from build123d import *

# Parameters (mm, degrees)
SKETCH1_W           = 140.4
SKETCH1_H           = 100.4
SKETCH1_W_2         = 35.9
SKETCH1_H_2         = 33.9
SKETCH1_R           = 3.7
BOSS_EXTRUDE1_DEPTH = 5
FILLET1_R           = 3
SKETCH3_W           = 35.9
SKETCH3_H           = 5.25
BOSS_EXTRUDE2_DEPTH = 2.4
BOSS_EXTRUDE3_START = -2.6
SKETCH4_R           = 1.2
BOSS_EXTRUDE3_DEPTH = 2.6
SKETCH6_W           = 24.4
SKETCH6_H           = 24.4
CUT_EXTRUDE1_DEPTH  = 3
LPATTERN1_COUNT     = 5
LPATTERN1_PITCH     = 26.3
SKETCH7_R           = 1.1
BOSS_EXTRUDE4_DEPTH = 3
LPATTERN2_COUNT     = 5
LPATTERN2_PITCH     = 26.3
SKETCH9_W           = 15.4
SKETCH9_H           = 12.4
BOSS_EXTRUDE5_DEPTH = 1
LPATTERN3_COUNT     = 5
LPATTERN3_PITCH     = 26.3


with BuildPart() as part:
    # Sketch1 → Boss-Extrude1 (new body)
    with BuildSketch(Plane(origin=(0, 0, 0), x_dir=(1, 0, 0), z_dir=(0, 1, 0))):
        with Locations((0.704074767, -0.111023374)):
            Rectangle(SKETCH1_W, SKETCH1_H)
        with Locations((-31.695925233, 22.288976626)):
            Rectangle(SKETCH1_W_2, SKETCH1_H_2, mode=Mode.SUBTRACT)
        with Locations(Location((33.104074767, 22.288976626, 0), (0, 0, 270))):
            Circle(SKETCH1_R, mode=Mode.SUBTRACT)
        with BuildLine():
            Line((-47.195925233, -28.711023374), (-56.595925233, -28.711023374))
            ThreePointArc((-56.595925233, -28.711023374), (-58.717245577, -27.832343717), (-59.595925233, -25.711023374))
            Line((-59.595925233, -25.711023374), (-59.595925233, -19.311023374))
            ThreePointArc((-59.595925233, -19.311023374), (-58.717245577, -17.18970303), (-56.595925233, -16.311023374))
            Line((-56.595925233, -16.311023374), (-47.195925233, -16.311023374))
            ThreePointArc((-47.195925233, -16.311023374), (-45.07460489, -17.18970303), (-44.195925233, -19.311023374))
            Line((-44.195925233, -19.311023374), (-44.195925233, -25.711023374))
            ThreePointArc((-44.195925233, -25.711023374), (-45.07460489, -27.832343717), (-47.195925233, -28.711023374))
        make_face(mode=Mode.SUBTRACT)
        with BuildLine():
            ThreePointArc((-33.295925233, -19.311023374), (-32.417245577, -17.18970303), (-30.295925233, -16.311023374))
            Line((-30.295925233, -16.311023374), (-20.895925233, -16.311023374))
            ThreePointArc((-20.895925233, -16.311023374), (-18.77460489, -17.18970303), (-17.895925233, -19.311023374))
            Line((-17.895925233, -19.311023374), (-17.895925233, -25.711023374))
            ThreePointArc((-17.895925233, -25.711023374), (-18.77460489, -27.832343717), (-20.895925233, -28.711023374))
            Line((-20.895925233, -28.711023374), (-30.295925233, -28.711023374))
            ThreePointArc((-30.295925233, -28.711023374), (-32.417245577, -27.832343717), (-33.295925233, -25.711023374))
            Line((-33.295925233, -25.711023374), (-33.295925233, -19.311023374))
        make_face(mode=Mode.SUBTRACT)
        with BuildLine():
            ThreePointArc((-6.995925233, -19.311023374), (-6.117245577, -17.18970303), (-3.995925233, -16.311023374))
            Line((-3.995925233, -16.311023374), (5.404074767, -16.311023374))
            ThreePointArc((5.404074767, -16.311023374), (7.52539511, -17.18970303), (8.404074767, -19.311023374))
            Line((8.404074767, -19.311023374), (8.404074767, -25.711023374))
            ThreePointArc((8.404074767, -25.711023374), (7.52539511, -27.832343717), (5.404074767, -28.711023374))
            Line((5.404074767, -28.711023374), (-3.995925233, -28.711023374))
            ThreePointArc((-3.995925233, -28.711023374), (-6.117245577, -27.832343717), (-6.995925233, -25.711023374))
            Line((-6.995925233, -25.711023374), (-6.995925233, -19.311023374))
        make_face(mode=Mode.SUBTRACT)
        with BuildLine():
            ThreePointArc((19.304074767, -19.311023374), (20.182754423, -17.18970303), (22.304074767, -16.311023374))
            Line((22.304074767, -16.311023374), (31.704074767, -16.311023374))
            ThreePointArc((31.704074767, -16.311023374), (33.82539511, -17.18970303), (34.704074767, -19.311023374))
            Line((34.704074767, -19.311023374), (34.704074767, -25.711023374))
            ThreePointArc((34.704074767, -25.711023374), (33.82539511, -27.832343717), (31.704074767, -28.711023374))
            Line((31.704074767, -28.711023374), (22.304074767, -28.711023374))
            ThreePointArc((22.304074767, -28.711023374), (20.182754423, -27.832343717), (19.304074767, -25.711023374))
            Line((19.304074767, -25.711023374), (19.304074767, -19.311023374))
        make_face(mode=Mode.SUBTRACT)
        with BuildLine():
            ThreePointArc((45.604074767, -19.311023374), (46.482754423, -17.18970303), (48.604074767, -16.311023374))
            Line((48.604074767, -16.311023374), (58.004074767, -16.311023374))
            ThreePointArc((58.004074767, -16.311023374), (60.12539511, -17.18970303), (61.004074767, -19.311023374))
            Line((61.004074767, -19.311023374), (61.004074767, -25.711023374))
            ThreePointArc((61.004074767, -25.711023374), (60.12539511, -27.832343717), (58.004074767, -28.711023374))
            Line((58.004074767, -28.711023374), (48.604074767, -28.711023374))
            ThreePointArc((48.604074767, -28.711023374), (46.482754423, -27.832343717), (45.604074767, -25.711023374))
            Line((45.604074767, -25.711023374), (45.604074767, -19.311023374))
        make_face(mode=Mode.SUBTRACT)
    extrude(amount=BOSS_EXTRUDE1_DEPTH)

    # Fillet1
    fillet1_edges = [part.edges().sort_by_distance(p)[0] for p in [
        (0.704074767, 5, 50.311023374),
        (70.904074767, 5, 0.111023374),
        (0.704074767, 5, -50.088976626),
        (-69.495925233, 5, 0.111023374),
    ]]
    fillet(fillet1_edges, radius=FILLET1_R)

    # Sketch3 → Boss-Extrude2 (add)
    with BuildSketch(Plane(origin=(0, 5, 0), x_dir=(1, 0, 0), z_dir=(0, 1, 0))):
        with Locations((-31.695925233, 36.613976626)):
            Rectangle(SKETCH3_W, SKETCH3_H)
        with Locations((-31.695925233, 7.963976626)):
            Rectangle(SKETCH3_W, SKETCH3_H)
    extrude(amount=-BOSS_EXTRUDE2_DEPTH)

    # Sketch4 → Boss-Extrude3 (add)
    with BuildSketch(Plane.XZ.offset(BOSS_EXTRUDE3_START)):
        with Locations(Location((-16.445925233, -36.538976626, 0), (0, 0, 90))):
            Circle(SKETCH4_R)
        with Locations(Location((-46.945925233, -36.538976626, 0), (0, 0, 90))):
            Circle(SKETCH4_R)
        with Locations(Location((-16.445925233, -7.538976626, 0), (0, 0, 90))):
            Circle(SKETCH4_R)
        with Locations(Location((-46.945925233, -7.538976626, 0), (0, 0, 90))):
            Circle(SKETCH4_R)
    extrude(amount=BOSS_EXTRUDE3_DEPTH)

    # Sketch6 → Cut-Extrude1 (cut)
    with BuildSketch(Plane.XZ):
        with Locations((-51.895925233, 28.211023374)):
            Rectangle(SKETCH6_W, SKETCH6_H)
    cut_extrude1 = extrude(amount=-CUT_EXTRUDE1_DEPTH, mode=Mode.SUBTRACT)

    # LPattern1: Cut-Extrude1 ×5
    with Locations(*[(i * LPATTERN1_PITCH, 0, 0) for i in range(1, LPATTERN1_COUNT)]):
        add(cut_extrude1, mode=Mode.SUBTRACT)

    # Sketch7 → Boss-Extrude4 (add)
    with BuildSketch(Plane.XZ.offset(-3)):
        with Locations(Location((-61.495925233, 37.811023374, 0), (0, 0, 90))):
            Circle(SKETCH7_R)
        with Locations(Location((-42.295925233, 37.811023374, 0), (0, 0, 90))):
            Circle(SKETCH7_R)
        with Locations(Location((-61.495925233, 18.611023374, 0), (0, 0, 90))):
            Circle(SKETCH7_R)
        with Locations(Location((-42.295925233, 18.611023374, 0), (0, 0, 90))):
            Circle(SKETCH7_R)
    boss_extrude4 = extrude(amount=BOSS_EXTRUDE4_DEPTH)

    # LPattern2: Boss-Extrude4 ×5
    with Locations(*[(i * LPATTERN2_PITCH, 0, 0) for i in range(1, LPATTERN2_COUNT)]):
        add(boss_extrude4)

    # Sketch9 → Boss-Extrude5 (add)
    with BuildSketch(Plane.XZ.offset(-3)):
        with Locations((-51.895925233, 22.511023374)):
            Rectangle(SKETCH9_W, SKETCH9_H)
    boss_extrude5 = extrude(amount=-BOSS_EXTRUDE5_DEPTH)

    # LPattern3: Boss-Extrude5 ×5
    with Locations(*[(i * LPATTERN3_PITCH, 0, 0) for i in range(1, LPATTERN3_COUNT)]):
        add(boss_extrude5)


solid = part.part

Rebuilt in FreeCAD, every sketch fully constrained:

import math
import FreeCAD as App
import Part
import Sketcher


def edges_at(feature, points):
    """Names of the edges that pass closest to the given points."""
    edges = feature.Shape.Edges
    near = lambda p: min(range(len(edges)), key=lambda i: edges[i].distToShape(Part.Vertex(*p))[0])
    return sorted({f"Edge{near(p) + 1}" for p in points})

doc = App.newDocument("Part")
body = doc.addObject("PartDesign::Body", "Body")

# Sketch on XZ plane
sketch1 = body.newObject("Sketcher::SketchObject", "Sketch")
sketch1.AttachmentSupport = (doc.getObject("XZ_Plane"), [""])
sketch1.MapMode = "FlatFace"
sketch1.addGeometry(Part.LineSegment(App.Vector(-69.5, -50.1, 0), App.Vector(-69.5, 50.3, 0)), False)
sketch1.addGeometry(Part.LineSegment(App.Vector(-69.5, 50.3, 0), App.Vector(70.9, 50.3, 0)), False)
sketch1.addGeometry(Part.LineSegment(App.Vector(70.9, 50.3, 0), App.Vector(70.9, -50.1, 0)), False)
sketch1.addGeometry(Part.LineSegment(App.Vector(70.9, -50.1, 0), App.Vector(-69.5, -50.1, 0)), False)
sketch1.addGeometry(Part.ArcOfCircle(Part.Circle(App.Vector(-47.2, 25.7, 0), App.Vector(0, 0, 1), 3), math.radians(0), math.radians(90)), False)
sketch1.addGeometry(Part.LineSegment(App.Vector(-47.2, 28.7, 0), App.Vector(-56.6, 28.7, 0)), False)
sketch1.addGeometry(Part.ArcOfCircle(Part.Circle(App.Vector(-56.6, 25.7, 0), App.Vector(0, 0, 1), 3), math.radians(90), math.radians(180)), False)
sketch1.addGeometry(Part.LineSegment(App.Vector(-59.6, 25.7, 0), App.Vector(-59.6, 19.3, 0)), False)
sketch1.addGeometry(Part.ArcOfCircle(Part.Circle(App.Vector(-56.6, 19.3, 0), App.Vector(0, 0, 1), 3), math.radians(180), math.radians(270)), False)
sketch1.addGeometry(Part.LineSegment(App.Vector(-56.6, 16.3, 0), App.Vector(-47.2, 16.3, 0)), False)
sketch1.addGeometry(Part.ArcOfCircle(Part.Circle(App.Vector(-47.2, 19.3, 0), App.Vector(0, 0, 1), 3), math.radians(-90), math.radians(0)), False)
sketch1.addGeometry(Part.LineSegment(App.Vector(-44.2, 19.3, 0), App.Vector(-44.2, 25.7, 0)), False)
sketch1.addGeometry(Part.LineSegment(App.Vector(-33.3, 25.7, 0), App.Vector(-33.3, 19.3, 0)), False)
sketch1.addGeometry(Part.ArcOfCircle(Part.Circle(App.Vector(-30.3, 19.3, 0), App.Vector(0, 0, 1), 3), math.radians(180), math.radians(270)), False)
sketch1.addGeometry(Part.LineSegment(App.Vector(-30.3, 16.3, 0), App.Vector(-20.9, 16.3, 0)), False)
sketch1.addGeometry(Part.ArcOfCircle(Part.Circle(App.Vector(-20.9, 19.3, 0), App.Vector(0, 0, 1), 3), math.radians(-90), math.radians(0)), False)
sketch1.addGeometry(Part.LineSegment(App.Vector(-17.9, 19.3, 0), App.Vector(-17.9, 25.7, 0)), False)
sketch1.addGeometry(Part.ArcOfCircle(Part.Circle(App.Vector(-20.9, 25.7, 0), App.Vector(0, 0, 1), 3), math.radians(0), math.radians(90)), False)
sketch1.addGeometry(Part.LineSegment(App.Vector(-20.9, 28.7, 0), App.Vector(-30.3, 28.7, 0)), False)
sketch1.addGeometry(Part.ArcOfCircle(Part.Circle(App.Vector(-30.3, 25.7, 0), App.Vector(0, 0, 1), 3), math.radians(90), math.radians(180)), False)
sketch1.addGeometry(Part.LineSegment(App.Vector(-7, 25.7, 0), App.Vector(-7, 19.3, 0)), False)
sketch1.addGeometry(Part.ArcOfCircle(Part.Circle(App.Vector(-4, 19.3, 0), App.Vector(0, 0, 1), 3), math.radians(180), math.radians(270)), False)
sketch1.addGeometry(Part.LineSegment(App.Vector(-4, 16.3, 0), App.Vector(5.4, 16.3, 0)), False)
sketch1.addGeometry(Part.ArcOfCircle(Part.Circle(App.Vector(5.4, 19.3, 0), App.Vector(0, 0, 1), 3), math.radians(-90), math.radians(0)), False)
sketch1.addGeometry(Part.LineSegment(App.Vector(8.4, 19.3, 0), App.Vector(8.4, 25.7, 0)), False)
sketch1.addGeometry(Part.ArcOfCircle(Part.Circle(App.Vector(5.4, 25.7, 0), App.Vector(0, 0, 1), 3), math.radians(0), math.radians(90)), False)
sketch1.addGeometry(Part.LineSegment(App.Vector(5.4, 28.7, 0), App.Vector(-4, 28.7, 0)), False)
sketch1.addGeometry(Part.ArcOfCircle(Part.Circle(App.Vector(-4, 25.7, 0), App.Vector(0, 0, 1), 3), math.radians(90), math.radians(180)), False)
sketch1.addGeometry(Part.LineSegment(App.Vector(19.3, 25.7, 0), App.Vector(19.3, 19.3, 0)), False)
sketch1.addGeometry(Part.ArcOfCircle(Part.Circle(App.Vector(22.3, 19.3, 0), App.Vector(0, 0, 1), 3), math.radians(180), math.radians(270)), False)
sketch1.addGeometry(Part.LineSegment(App.Vector(22.3, 16.3, 0), App.Vector(31.7, 16.3, 0)), False)
sketch1.addGeometry(Part.ArcOfCircle(Part.Circle(App.Vector(31.7, 19.3, 0), App.Vector(0, 0, 1), 3), math.radians(-90), math.radians(0)), False)
sketch1.addGeometry(Part.LineSegment(App.Vector(34.7, 19.3, 0), App.Vector(34.7, 25.7, 0)), False)
sketch1.addGeometry(Part.ArcOfCircle(Part.Circle(App.Vector(31.7, 25.7, 0), App.Vector(0, 0, 1), 3), math.radians(0), math.radians(90)), False)
sketch1.addGeometry(Part.LineSegment(App.Vector(31.7, 28.7, 0), App.Vector(22.3, 28.7, 0)), False)
sketch1.addGeometry(Part.ArcOfCircle(Part.Circle(App.Vector(22.3, 25.7, 0), App.Vector(0, 0, 1), 3), math.radians(90), math.radians(180)), False)
sketch1.addGeometry(Part.LineSegment(App.Vector(45.6, 25.7, 0), App.Vector(45.6, 19.3, 0)), False)
sketch1.addGeometry(Part.ArcOfCircle(Part.Circle(App.Vector(48.6, 19.3, 0), App.Vector(0, 0, 1), 3), math.radians(180), math.radians(270)), False)
sketch1.addGeometry(Part.LineSegment(App.Vector(48.6, 16.3, 0), App.Vector(58, 16.3, 0)), False)
sketch1.addGeometry(Part.ArcOfCircle(Part.Circle(App.Vector(58, 19.3, 0), App.Vector(0, 0, 1), 3), math.radians(-90), math.radians(0)), False)
sketch1.addGeometry(Part.LineSegment(App.Vector(61, 19.3, 0), App.Vector(61, 25.7, 0)), False)
sketch1.addGeometry(Part.ArcOfCircle(Part.Circle(App.Vector(58, 25.7, 0), App.Vector(0, 0, 1), 3), math.radians(0), math.radians(90)), False)
sketch1.addGeometry(Part.LineSegment(App.Vector(58, 28.7, 0), App.Vector(48.6, 28.7, 0)), False)
sketch1.addGeometry(Part.ArcOfCircle(Part.Circle(App.Vector(48.6, 25.7, 0), App.Vector(0, 0, 1), 3), math.radians(90), math.radians(180)), False)
sketch1.addGeometry(Part.LineSegment(App.Vector(-13.7, -5.3, 0), App.Vector(-49.6, -5.3, 0)), False)
sketch1.addGeometry(Part.LineSegment(App.Vector(-49.6, -5.3, 0), App.Vector(-49.6, -39.2, 0)), False)
sketch1.addGeometry(Part.LineSegment(App.Vector(-49.6, -39.2, 0), App.Vector(-13.7, -39.2, 0)), False)
sketch1.addGeometry(Part.LineSegment(App.Vector(-13.7, -39.2, 0), App.Vector(-13.7, -5.3, 0)), False)
sketch1.addGeometry(Part.Circle(App.Vector(33.1, -22.3, 0), App.Vector(0, 0, 1), 3.7), False)
sketch1.addConstraint(Sketcher.Constraint("Coincident", 0, 2, 1, 1))
sketch1.addConstraint(Sketcher.Constraint("Coincident", 1, 2, 2, 1))
sketch1.addConstraint(Sketcher.Constraint("Coincident", 2, 2, 3, 1))
sketch1.addConstraint(Sketcher.Constraint("Coincident", 3, 2, 0, 1))
sketch1.addConstraint(Sketcher.Constraint("Tangent", 4, 2, 5, 1))
sketch1.addConstraint(Sketcher.Constraint("Tangent", 5, 2, 6, 1))
sketch1.addConstraint(Sketcher.Constraint("Tangent", 6, 2, 7, 1))
sketch1.addConstraint(Sketcher.Constraint("Tangent", 7, 2, 8, 1))
sketch1.addConstraint(Sketcher.Constraint("Tangent", 8, 2, 9, 1))
sketch1.addConstraint(Sketcher.Constraint("Tangent", 9, 2, 10, 1))
sketch1.addConstraint(Sketcher.Constraint("Tangent", 10, 2, 11, 1))
sketch1.addConstraint(Sketcher.Constraint("Tangent", 11, 2, 4, 1))
sketch1.addConstraint(Sketcher.Constraint("Tangent", 12, 2, 13, 1))
sketch1.addConstraint(Sketcher.Constraint("Tangent", 13, 2, 14, 1))
sketch1.addConstraint(Sketcher.Constraint("Tangent", 14, 2, 15, 1))
sketch1.addConstraint(Sketcher.Constraint("Tangent", 15, 2, 16, 1))
sketch1.addConstraint(Sketcher.Constraint("Tangent", 16, 2, 17, 1))
sketch1.addConstraint(Sketcher.Constraint("Tangent", 17, 2, 18, 1))
sketch1.addConstraint(Sketcher.Constraint("Tangent", 18, 2, 19, 1))
sketch1.addConstraint(Sketcher.Constraint("Tangent", 19, 2, 12, 1))
sketch1.addConstraint(Sketcher.Constraint("Tangent", 20, 2, 21, 1))
sketch1.addConstraint(Sketcher.Constraint("Tangent", 21, 2, 22, 1))
sketch1.addConstraint(Sketcher.Constraint("Tangent", 22, 2, 23, 1))
sketch1.addConstraint(Sketcher.Constraint("Tangent", 23, 2, 24, 1))
sketch1.addConstraint(Sketcher.Constraint("Tangent", 24, 2, 25, 1))
sketch1.addConstraint(Sketcher.Constraint("Tangent", 25, 2, 26, 1))
sketch1.addConstraint(Sketcher.Constraint("Tangent", 26, 2, 27, 1))
sketch1.addConstraint(Sketcher.Constraint("Tangent", 27, 2, 20, 1))
sketch1.addConstraint(Sketcher.Constraint("Tangent", 28, 2, 29, 1))
sketch1.addConstraint(Sketcher.Constraint("Tangent", 29, 2, 30, 1))
sketch1.addConstraint(Sketcher.Constraint("Tangent", 30, 2, 31, 1))
sketch1.addConstraint(Sketcher.Constraint("Tangent", 31, 2, 32, 1))
sketch1.addConstraint(Sketcher.Constraint("Tangent", 32, 2, 33, 1))
sketch1.addConstraint(Sketcher.Constraint("Tangent", 33, 2, 34, 1))
sketch1.addConstraint(Sketcher.Constraint("Tangent", 34, 2, 35, 1))
sketch1.addConstraint(Sketcher.Constraint("Tangent", 35, 2, 28, 1))
sketch1.addConstraint(Sketcher.Constraint("Tangent", 36, 2, 37, 1))
sketch1.addConstraint(Sketcher.Constraint("Tangent", 37, 2, 38, 1))
sketch1.addConstraint(Sketcher.Constraint("Tangent", 38, 2, 39, 1))
sketch1.addConstraint(Sketcher.Constraint("Tangent", 39, 2, 40, 1))
sketch1.addConstraint(Sketcher.Constraint("Tangent", 40, 2, 41, 1))
sketch1.addConstraint(Sketcher.Constraint("Tangent", 41, 2, 42, 1))
sketch1.addConstraint(Sketcher.Constraint("Tangent", 42, 2, 43, 1))
sketch1.addConstraint(Sketcher.Constraint("Tangent", 43, 2, 36, 1))
sketch1.addConstraint(Sketcher.Constraint("Coincident", 44, 2, 45, 1))
sketch1.addConstraint(Sketcher.Constraint("Coincident", 45, 2, 46, 1))
sketch1.addConstraint(Sketcher.Constraint("Coincident", 46, 2, 47, 1))
sketch1.addConstraint(Sketcher.Constraint("Coincident", 47, 2, 44, 1))
sketch1.addConstraint(Sketcher.Constraint("Vertical", 0))
sketch1.addConstraint(Sketcher.Constraint("Horizontal", 1))
sketch1.addConstraint(Sketcher.Constraint("Vertical", 2))
sketch1.addConstraint(Sketcher.Constraint("Horizontal", 3))
sketch1.addConstraint(Sketcher.Constraint("Horizontal", 5))
sketch1.addConstraint(Sketcher.Constraint("Vertical", 7))
sketch1.addConstraint(Sketcher.Constraint("Horizontal", 9))
sketch1.addConstraint(Sketcher.Constraint("Vertical", 11))
sketch1.addConstraint(Sketcher.Constraint("Vertical", 12))
sketch1.addConstraint(Sketcher.Constraint("Horizontal", 14))
sketch1.addConstraint(Sketcher.Constraint("Vertical", 16))
sketch1.addConstraint(Sketcher.Constraint("Horizontal", 18))
sketch1.addConstraint(Sketcher.Constraint("Vertical", 20))
sketch1.addConstraint(Sketcher.Constraint("Horizontal", 22))
sketch1.addConstraint(Sketcher.Constraint("Vertical", 24))
sketch1.addConstraint(Sketcher.Constraint("Horizontal", 26))
sketch1.addConstraint(Sketcher.Constraint("Vertical", 28))
sketch1.addConstraint(Sketcher.Constraint("Horizontal", 30))
sketch1.addConstraint(Sketcher.Constraint("Vertical", 32))
sketch1.addConstraint(Sketcher.Constraint("Horizontal", 34))
sketch1.addConstraint(Sketcher.Constraint("Vertical", 36))
sketch1.addConstraint(Sketcher.Constraint("Horizontal", 38))
sketch1.addConstraint(Sketcher.Constraint("Vertical", 40))
sketch1.addConstraint(Sketcher.Constraint("Horizontal", 42))
sketch1.addConstraint(Sketcher.Constraint("Horizontal", 44))
sketch1.addConstraint(Sketcher.Constraint("Vertical", 45))
sketch1.addConstraint(Sketcher.Constraint("Horizontal", 46))
sketch1.addConstraint(Sketcher.Constraint("Vertical", 47))
sketch1.addConstraint(Sketcher.Constraint("Equal", 4, 6))
sketch1.addConstraint(Sketcher.Constraint("Equal", 6, 8))
sketch1.addConstraint(Sketcher.Constraint("Equal", 8, 10))
sketch1.addConstraint(Sketcher.Constraint("Equal", 10, 13))
sketch1.addConstraint(Sketcher.Constraint("Equal", 13, 15))
sketch1.addConstraint(Sketcher.Constraint("Equal", 15, 17))
sketch1.addConstraint(Sketcher.Constraint("Equal", 17, 19))
sketch1.addConstraint(Sketcher.Constraint("Equal", 19, 21))
sketch1.addConstraint(Sketcher.Constraint("Equal", 21, 23))
sketch1.addConstraint(Sketcher.Constraint("Equal", 23, 25))
sketch1.addConstraint(Sketcher.Constraint("Equal", 25, 27))
sketch1.addConstraint(Sketcher.Constraint("Equal", 27, 29))
sketch1.addConstraint(Sketcher.Constraint("Equal", 29, 31))
sketch1.addConstraint(Sketcher.Constraint("Equal", 31, 33))
sketch1.addConstraint(Sketcher.Constraint("Equal", 33, 35))
sketch1.addConstraint(Sketcher.Constraint("Equal", 35, 37))
sketch1.addConstraint(Sketcher.Constraint("Equal", 37, 39))
sketch1.addConstraint(Sketcher.Constraint("Equal", 39, 41))
sketch1.addConstraint(Sketcher.Constraint("Equal", 41, 43))
sketch1.addConstraint(Sketcher.Constraint("Horizontal", 10, 3, 13, 3))
sketch1.addConstraint(Sketcher.Constraint("Horizontal", 6, 3, 17, 3))
sketch1.addConstraint(Sketcher.Constraint("Horizontal", 15, 3, 21, 3))
sketch1.addConstraint(Sketcher.Constraint("Horizontal", 19, 3, 25, 3))
sketch1.addConstraint(Sketcher.Constraint("Horizontal", 23, 3, 29, 3))
sketch1.addConstraint(Sketcher.Constraint("Horizontal", 27, 3, 33, 3))
sketch1.addConstraint(Sketcher.Constraint("Horizontal", 31, 3, 37, 3))
sketch1.addConstraint(Sketcher.Constraint("Horizontal", 35, 3, 41, 3))
sketch1.addConstraint(Sketcher.Constraint("Equal", 9, 14))
sketch1.addConstraint(Sketcher.Constraint("Equal", 18, 22))
sketch1.addConstraint(Sketcher.Constraint("Equal", 26, 30))
sketch1.addConstraint(Sketcher.Constraint("Equal", 34, 38))
sketch1.addConstraint(Sketcher.Constraint("Radius", 4, 3.0))
sketch1.addConstraint(Sketcher.Constraint("Diameter", 48, 7.4))
sketch1.addConstraint(Sketcher.Constraint("DistanceX", 1, 1, 1, 2, 140.4))
sketch1.addConstraint(Sketcher.Constraint("DistanceX", 5, 2, 5, 1, 9.4))
sketch1.addConstraint(Sketcher.Constraint("DistanceX", 44, 2, 44, 1, 35.9))
sketch1.addConstraint(Sketcher.Constraint("DistanceY", 0, 1, 0, 2, 100.4))
sketch1.addConstraint(Sketcher.Constraint("DistanceY", 7, 2, 7, 1, 6.4))
sketch1.addConstraint(Sketcher.Constraint("DistanceY", 45, 2, 45, 1, 33.9))
sketch1.addConstraint(Sketcher.Constraint("DistanceX", 4, 3, -1, 1, 47.195925))
sketch1.addConstraint(Sketcher.Constraint("DistanceY", -1, 1, 4, 3, 25.711023))
sketch1.addConstraint(Sketcher.Constraint("DistanceX", 13, 3, -1, 1, 30.295925))
sketch1.addConstraint(Sketcher.Constraint("DistanceX", 21, 3, -1, 1, 3.995925))
sketch1.addConstraint(Sketcher.Constraint("DistanceX", -1, 1, 29, 3, 22.304075))
sketch1.addConstraint(Sketcher.Constraint("DistanceX", -1, 1, 37, 3, 48.604075))
sketch1.addConstraint(Sketcher.Constraint("DistanceX", -1, 1, 48, 3, 33.104075))
sketch1.addConstraint(Sketcher.Constraint("DistanceY", 48, 3, -1, 1, 22.288977))
sketch1.addConstraint(Sketcher.Constraint("DistanceX", 0, 2, -1, 1, 69.495925))
sketch1.addConstraint(Sketcher.Constraint("DistanceY", -1, 1, 0, 2, 50.311023))
sketch1.addConstraint(Sketcher.Constraint("DistanceX", 44, 2, -1, 1, 49.645925))
sketch1.addConstraint(Sketcher.Constraint("DistanceY", 44, 2, -1, 1, 5.338977))
pad1 = body.newObject("PartDesign::Pad", "Pad")
pad1.Profile = sketch1
pad1.Length = 5
pad1.Reversed = True
doc.recompute()

fillet = body.newObject("PartDesign::Fillet", "Fillet")
fillet.Base = (pad1, edges_at(pad1, [
    (0.704, 5, 50.311),
    (70.904, 5, 0.111),
    (0.704, 5, -50.089),
    (-69.496, 5, 0.111),
]))
fillet.Radius = 3

# Sketch on XZ plane
sketch2 = body.newObject("Sketcher::SketchObject", "Sketch001")
sketch2.AttachmentSupport = (doc.getObject("XZ_Plane"), [""])
sketch2.MapMode = "FlatFace"
sketch2.AttachmentOffset = App.Placement(App.Vector(0, 0, -5), App.Rotation())
sketch2.addGeometry(Part.LineSegment(App.Vector(-50, -39, 0), App.Vector(-50, -34, 0)), False)
sketch2.addGeometry(Part.LineSegment(App.Vector(-50, -34, 0), App.Vector(-14, -34, 0)), False)
sketch2.addGeometry(Part.LineSegment(App.Vector(-14, -34, 0), App.Vector(-14, -39, 0)), False)
sketch2.addGeometry(Part.LineSegment(App.Vector(-14, -39, 0), App.Vector(-50, -39, 0)), False)
sketch2.addGeometry(Part.LineSegment(App.Vector(-50, -11, 0), App.Vector(-50, -5, 0)), False)
sketch2.addGeometry(Part.LineSegment(App.Vector(-50, -5, 0), App.Vector(-14, -5, 0)), False)
sketch2.addGeometry(Part.LineSegment(App.Vector(-14, -5, 0), App.Vector(-14, -11, 0)), False)
sketch2.addGeometry(Part.LineSegment(App.Vector(-14, -11, 0), App.Vector(-50, -11, 0)), False)
sketch2.addConstraint(Sketcher.Constraint("Coincident", 0, 2, 1, 1))
sketch2.addConstraint(Sketcher.Constraint("Coincident", 1, 2, 2, 1))
sketch2.addConstraint(Sketcher.Constraint("Coincident", 2, 2, 3, 1))
sketch2.addConstraint(Sketcher.Constraint("Coincident", 3, 2, 0, 1))
sketch2.addConstraint(Sketcher.Constraint("Coincident", 4, 2, 5, 1))
sketch2.addConstraint(Sketcher.Constraint("Coincident", 5, 2, 6, 1))
sketch2.addConstraint(Sketcher.Constraint("Coincident", 6, 2, 7, 1))
sketch2.addConstraint(Sketcher.Constraint("Coincident", 7, 2, 4, 1))
sketch2.addConstraint(Sketcher.Constraint("Vertical", 0))
sketch2.addConstraint(Sketcher.Constraint("Horizontal", 1))
sketch2.addConstraint(Sketcher.Constraint("Vertical", 2))
sketch2.addConstraint(Sketcher.Constraint("Horizontal", 3))
sketch2.addConstraint(Sketcher.Constraint("Vertical", 4))
sketch2.addConstraint(Sketcher.Constraint("Horizontal", 5))
sketch2.addConstraint(Sketcher.Constraint("Vertical", 6))
sketch2.addConstraint(Sketcher.Constraint("Horizontal", 7))
sketch2.addConstraint(Sketcher.Constraint("Vertical", 3, 2, 4, 2))
sketch2.addConstraint(Sketcher.Constraint("Vertical", 2, 2, 5, 2))
sketch2.addConstraint(Sketcher.Constraint("Equal", 2, 4))
sketch2.addConstraint(Sketcher.Constraint("DistanceX", 1, 1, 1, 2, 35.9))
sketch2.addConstraint(Sketcher.Constraint("DistanceY", 0, 1, 0, 2, 5.25))
sketch2.addConstraint(Sketcher.Constraint("DistanceY", 3, 2, 4, 2, 33.9))
sketch2.addConstraint(Sketcher.Constraint("DistanceX", 0, 2, -1, 1, 49.645925))
sketch2.addConstraint(Sketcher.Constraint("DistanceY", 0, 2, -1, 1, 33.988977))
pad2 = body.newObject("PartDesign::Pad", "Pad001")
pad2.Profile = sketch2
pad2.Length = 2.4

# Sketch on XZ plane
sketch3 = body.newObject("Sketcher::SketchObject", "Sketch002")
sketch3.AttachmentSupport = (doc.getObject("XZ_Plane"), [""])
sketch3.MapMode = "FlatFace"
sketch3.AttachmentOffset = App.Placement(App.Vector(0, 0, -2.6), App.Rotation())
sketch3.addGeometry(Part.Circle(App.Vector(-16.4, -36.5, 0), App.Vector(0, 0, 1), 1.2), False)
sketch3.addGeometry(Part.Circle(App.Vector(-46.9, -36.5, 0), App.Vector(0, 0, 1), 1.2), False)
sketch3.addGeometry(Part.Circle(App.Vector(-16.4, -7.5, 0), App.Vector(0, 0, 1), 1.2), False)
sketch3.addGeometry(Part.Circle(App.Vector(-46.9, -7.5, 0), App.Vector(0, 0, 1), 1.2), False)
sketch3.addConstraint(Sketcher.Constraint("Equal", 0, 1))
sketch3.addConstraint(Sketcher.Constraint("Equal", 1, 2))
sketch3.addConstraint(Sketcher.Constraint("Equal", 2, 3))
sketch3.addConstraint(Sketcher.Constraint("Horizontal", 0, 3, 1, 3))
sketch3.addConstraint(Sketcher.Constraint("Horizontal", 2, 3, 3, 3))
sketch3.addConstraint(Sketcher.Constraint("Vertical", 0, 3, 2, 3))
sketch3.addConstraint(Sketcher.Constraint("Vertical", 1, 3, 3, 3))
sketch3.addConstraint(Sketcher.Constraint("Diameter", 0, 2.4))
sketch3.addConstraint(Sketcher.Constraint("DistanceY", 0, 3, 2, 3, 29.0))
sketch3.addConstraint(Sketcher.Constraint("DistanceX", 1, 3, 0, 3, 30.5))
sketch3.addConstraint(Sketcher.Constraint("DistanceX", 0, 3, -1, 1, 16.445925))
sketch3.addConstraint(Sketcher.Constraint("DistanceY", 0, 3, -1, 1, 36.538977))
pad3 = body.newObject("PartDesign::Pad", "Pad002")
pad3.Profile = sketch3
pad3.Length = 2.6

# Sketch on XZ plane
sketch4 = body.newObject("Sketcher::SketchObject", "Sketch003")
sketch4.AttachmentSupport = (doc.getObject("XZ_Plane"), [""])
sketch4.MapMode = "FlatFace"
sketch4.addGeometry(Part.LineSegment(App.Vector(-64, 40, 0), App.Vector(-64, 16, 0)), False)
sketch4.addGeometry(Part.LineSegment(App.Vector(-64, 16, 0), App.Vector(-40, 16, 0)), False)
sketch4.addGeometry(Part.LineSegment(App.Vector(-40, 16, 0), App.Vector(-40, 40, 0)), False)
sketch4.addGeometry(Part.LineSegment(App.Vector(-40, 40, 0), App.Vector(-64, 40, 0)), False)
sketch4.addConstraint(Sketcher.Constraint("Coincident", 0, 2, 1, 1))
sketch4.addConstraint(Sketcher.Constraint("Coincident", 1, 2, 2, 1))
sketch4.addConstraint(Sketcher.Constraint("Coincident", 2, 2, 3, 1))
sketch4.addConstraint(Sketcher.Constraint("Coincident", 3, 2, 0, 1))
sketch4.addConstraint(Sketcher.Constraint("Vertical", 0))
sketch4.addConstraint(Sketcher.Constraint("Horizontal", 1))
sketch4.addConstraint(Sketcher.Constraint("Vertical", 2))
sketch4.addConstraint(Sketcher.Constraint("Horizontal", 3))
sketch4.addConstraint(Sketcher.Constraint("Equal", 3, 0))
sketch4.addConstraint(Sketcher.Constraint("DistanceX", 1, 1, 1, 2, 24.4))
sketch4.addConstraint(Sketcher.Constraint("DistanceX", 0, 2, -1, 1, 64.095925))
sketch4.addConstraint(Sketcher.Constraint("DistanceY", -1, 1, 0, 2, 16.011023))
pocket1 = body.newObject("PartDesign::Pocket", "Pocket")
pocket1.Profile = sketch4
pocket1.Length = 3
doc.recompute()

linearpattern = body.newObject("PartDesign::LinearPattern", "LinearPattern")
linearpattern.Originals = [pocket1]
linearpattern.Direction = (doc.getObject("X_Axis"), [""])
linearpattern.Mode = "offset"
linearpattern.Offset = 26.3
linearpattern.Occurrences = 5
body.Tip = linearpattern

# Sketch on XZ plane
sketch5 = body.newObject("Sketcher::SketchObject", "Sketch004")
sketch5.AttachmentSupport = (doc.getObject("XZ_Plane"), [""])
sketch5.MapMode = "FlatFace"
sketch5.AttachmentOffset = App.Placement(App.Vector(0, 0, -3), App.Rotation())
sketch5.addGeometry(Part.Circle(App.Vector(-61.5, 37.8, 0), App.Vector(0, 0, 1), 1.1), False)
sketch5.addGeometry(Part.Circle(App.Vector(-42.3, 37.8, 0), App.Vector(0, 0, 1), 1.1), False)
sketch5.addGeometry(Part.Circle(App.Vector(-61.5, 18.6, 0), App.Vector(0, 0, 1), 1.1), False)
sketch5.addGeometry(Part.Circle(App.Vector(-42.3, 18.6, 0), App.Vector(0, 0, 1), 1.1), False)
sketch5.addConstraint(Sketcher.Constraint("Equal", 0, 1))
sketch5.addConstraint(Sketcher.Constraint("Equal", 1, 2))
sketch5.addConstraint(Sketcher.Constraint("Equal", 2, 3))
sketch5.addConstraint(Sketcher.Constraint("Horizontal", 0, 3, 1, 3))
sketch5.addConstraint(Sketcher.Constraint("Horizontal", 2, 3, 3, 3))
sketch5.addConstraint(Sketcher.Constraint("Vertical", 0, 3, 2, 3))
sketch5.addConstraint(Sketcher.Constraint("Vertical", 1, 3, 3, 3))
sketch5.addConstraint(Sketcher.Constraint("Diameter", 0, 2.2))
sketch5.addConstraint(Sketcher.Constraint("DistanceX", 0, 3, 1, 3, 19.2))
sketch5.addConstraint(Sketcher.Constraint("DistanceY", 2, 3, 0, 3, 19.2))
sketch5.addConstraint(Sketcher.Constraint("DistanceX", 0, 3, -1, 1, 61.495925))
sketch5.addConstraint(Sketcher.Constraint("DistanceY", -1, 1, 0, 3, 37.811023))
pad4 = body.newObject("PartDesign::Pad", "Pad003")
pad4.Profile = sketch5
pad4.Length = 3
doc.recompute()

linearpattern2 = body.newObject("PartDesign::LinearPattern", "LinearPattern001")
linearpattern2.Originals = [pad4]
linearpattern2.Direction = (doc.getObject("X_Axis"), [""])
linearpattern2.Mode = "offset"
linearpattern2.Offset = 26.3
linearpattern2.Occurrences = 5
body.Tip = linearpattern2

# Sketch on XZ plane
sketch6 = body.newObject("Sketcher::SketchObject", "Sketch005")
sketch6.AttachmentSupport = (doc.getObject("XZ_Plane"), [""])
sketch6.MapMode = "FlatFace"
sketch6.AttachmentOffset = App.Placement(App.Vector(0, 0, -3), App.Rotation())
sketch6.addGeometry(Part.LineSegment(App.Vector(-60, 29, 0), App.Vector(-60, 16, 0)), False)
sketch6.addGeometry(Part.LineSegment(App.Vector(-60, 16, 0), App.Vector(-44, 16, 0)), False)
sketch6.addGeometry(Part.LineSegment(App.Vector(-44, 16, 0), App.Vector(-44, 29, 0)), False)
sketch6.addGeometry(Part.LineSegment(App.Vector(-44, 29, 0), App.Vector(-60, 29, 0)), False)
sketch6.addConstraint(Sketcher.Constraint("Coincident", 0, 2, 1, 1))
sketch6.addConstraint(Sketcher.Constraint("Coincident", 1, 2, 2, 1))
sketch6.addConstraint(Sketcher.Constraint("Coincident", 2, 2, 3, 1))
sketch6.addConstraint(Sketcher.Constraint("Coincident", 3, 2, 0, 1))
sketch6.addConstraint(Sketcher.Constraint("Vertical", 0))
sketch6.addConstraint(Sketcher.Constraint("Horizontal", 1))
sketch6.addConstraint(Sketcher.Constraint("Vertical", 2))
sketch6.addConstraint(Sketcher.Constraint("Horizontal", 3))
sketch6.addConstraint(Sketcher.Constraint("DistanceX", 1, 1, 1, 2, 15.4))
sketch6.addConstraint(Sketcher.Constraint("DistanceY", 0, 2, 0, 1, 12.4))
sketch6.addConstraint(Sketcher.Constraint("DistanceX", 0, 2, -1, 1, 59.595925))
sketch6.addConstraint(Sketcher.Constraint("DistanceY", -1, 1, 0, 2, 16.311023))
pad5 = body.newObject("PartDesign::Pad", "Pad004")
pad5.Profile = sketch6
pad5.Length = 1
pad5.Reversed = True
doc.recompute()

linearpattern3 = body.newObject("PartDesign::LinearPattern", "LinearPattern002")
linearpattern3.Originals = [pad5]
linearpattern3.Direction = (doc.getObject("X_Axis"), [""])
linearpattern3.Mode = "offset"
linearpattern3.Offset = 26.3
linearpattern3.Occurrences = 5
body.Tip = linearpattern3

doc.recompute()
